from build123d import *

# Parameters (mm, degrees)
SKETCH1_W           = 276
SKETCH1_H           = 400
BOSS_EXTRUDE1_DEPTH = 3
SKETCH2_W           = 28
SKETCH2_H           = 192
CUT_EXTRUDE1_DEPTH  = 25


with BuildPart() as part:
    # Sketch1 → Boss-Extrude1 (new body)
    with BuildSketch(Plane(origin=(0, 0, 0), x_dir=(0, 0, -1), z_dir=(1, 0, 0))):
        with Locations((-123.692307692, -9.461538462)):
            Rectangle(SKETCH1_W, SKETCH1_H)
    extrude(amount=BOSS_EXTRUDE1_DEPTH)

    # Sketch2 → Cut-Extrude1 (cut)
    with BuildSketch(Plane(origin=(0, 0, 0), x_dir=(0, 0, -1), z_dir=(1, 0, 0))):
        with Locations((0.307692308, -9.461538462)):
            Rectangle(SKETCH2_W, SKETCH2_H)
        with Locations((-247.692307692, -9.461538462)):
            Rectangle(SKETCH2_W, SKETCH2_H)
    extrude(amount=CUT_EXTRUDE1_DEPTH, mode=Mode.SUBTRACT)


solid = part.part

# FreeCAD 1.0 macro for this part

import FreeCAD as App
import Part
import Sketcher
Q = App.Units.Quantity

doc = App.newDocument("Part")
body = doc.addObject("PartDesign::Body", "Body")

sketch1 = body.newObject("Sketcher::SketchObject", "Sketch")
sketch1.AttachmentSupport = (doc.getObject("YZ_Plane"), [""])
sketch1.MapMode = "FlatFace"
sketch1.addGeometry([
    Part.LineSegment(App.Vector(190.538462, 261.692308, 0), App.Vector(-209.461538, 261.692308, 0)),
    Part.LineSegment(App.Vector(-209.461538, 261.692308, 0), App.Vector(-209.461538, -14.307692, 0)),
    Part.LineSegment(App.Vector(-209.461538, -14.307692, 0), App.Vector(190.538462, -14.307692, 0)),
    Part.LineSegment(App.Vector(190.538462, -14.307692, 0), App.Vector(190.538462, 261.692308, 0)),
], False)
sketch1.addConstraint([
    Sketcher.Constraint("Coincident", 0, 2, 1, 1),
    Sketcher.Constraint("Coincident", 1, 2, 2, 1),
    Sketcher.Constraint("Coincident", 2, 2, 3, 1),
    Sketcher.Constraint("Coincident", 3, 2, 0, 1),
    Sketcher.Constraint("Horizontal", 0),
    Sketcher.Constraint("Vertical", 1),
    Sketcher.Constraint("Horizontal", 2),
    Sketcher.Constraint("Vertical", 3),
    Sketcher.Constraint("DistanceX", 0, 2, 0, 1, Q("400 mm")),
    Sketcher.Constraint("DistanceY", 1, 2, 1, 1, Q("276 mm")),
    Sketcher.Constraint("DistanceX", 0, 2, -1, 1, Q("209.461538 mm")),
    Sketcher.Constraint("DistanceY", -1, 1, 0, 2, Q("261.692308 mm")),
])
pad1 = body.newObject("PartDesign::Pad", "Pad")
pad1.Profile = sketch1
pad1.Length = 3

sketch2 = body.newObject("Sketcher::SketchObject", "Sketch001")
sketch2.AttachmentSupport = (doc.getObject("YZ_Plane"), [""])
sketch2.MapMode = "FlatFace"
sketch2.addGeometry([
    Part.LineSegment(App.Vector(86.538462, 13.692308, 0), App.Vector(-105.461538, 13.692308, 0)),
    Part.LineSegment(App.Vector(-105.461538, 13.692308, 0), App.Vector(-105.461538, -14.307692, 0)),
    Part.LineSegment(App.Vector(-105.461538, -14.307692, 0), App.Vector(86.538462, -14.307692, 0)),
    Part.LineSegment(App.Vector(86.538462, -14.307692, 0), App.Vector(86.538462, 13.692308, 0)),
    Part.LineSegment(App.Vector(86.538462, 261.692308, 0), App.Vector(-105.461538, 261.692308, 0)),
    Part.LineSegment(App.Vector(-105.461538, 261.692308, 0), App.Vector(-105.461538, 233.692308, 0)),
    Part.LineSegment(App.Vector(-105.461538, 233.692308, 0), App.Vector(86.538462, 233.692308, 0)),
    Part.LineSegment(App.Vector(86.538462, 233.692308, 0), App.Vector(86.538462, 261.692308, 0)),
], False)
sketch2.addConstraint([
    Sketcher.Constraint("Coincident", 0, 2, 1, 1),
    Sketcher.Constraint("Coincident", 1, 2, 2, 1),
    Sketcher.Constraint("Coincident", 2, 2, 3, 1),
    Sketcher.Constraint("Coincident", 3, 2, 0, 1),
    Sketcher.Constraint("Coincident", 4, 2, 5, 1),
    Sketcher.Constraint("Coincident", 5, 2, 6, 1),
    Sketcher.Constraint("Coincident", 6, 2, 7, 1),
    Sketcher.Constraint("Coincident", 7, 2, 4, 1),
    Sketcher.Constraint("Horizontal", 0),
    Sketcher.Constraint("Vertical", 1),
    Sketcher.Constraint("Horizontal", 2),
    Sketcher.Constraint("Vertical", 3),
    Sketcher.Constraint("Horizontal", 4),
    Sketcher.Constraint("Vertical", 5),
    Sketcher.Constraint("Horizontal", 6),
    Sketcher.Constraint("Vertical", 7),
    Sketcher.Constraint("Vertical", 1, 2, 4, 2),
    Sketcher.Constraint("Vertical", 3, 2, 6, 2),
    Sketcher.Constraint("Equal", 3, 5),
    Sketcher.Constraint("DistanceX", 0, 2, 0, 1, Q("192 mm")),
    Sketcher.Constraint("DistanceY", 1, 2, 1, 1, Q("28 mm")),
    Sketcher.Constraint("DistanceY", 0, 2, 4, 2, Q("248 mm")),
    Sketcher.Constraint("DistanceX", 0, 2, -1, 1, Q("105.461538 mm")),
    Sketcher.Constraint("DistanceY", -1, 1, 0, 2, Q("13.692308 mm")),
])
pocket1 = body.newObject("PartDesign::Pocket", "Pocket")
pocket1.Profile = sketch2
pocket1.Length = 25
pocket1.Reversed = True

doc.recompute()
